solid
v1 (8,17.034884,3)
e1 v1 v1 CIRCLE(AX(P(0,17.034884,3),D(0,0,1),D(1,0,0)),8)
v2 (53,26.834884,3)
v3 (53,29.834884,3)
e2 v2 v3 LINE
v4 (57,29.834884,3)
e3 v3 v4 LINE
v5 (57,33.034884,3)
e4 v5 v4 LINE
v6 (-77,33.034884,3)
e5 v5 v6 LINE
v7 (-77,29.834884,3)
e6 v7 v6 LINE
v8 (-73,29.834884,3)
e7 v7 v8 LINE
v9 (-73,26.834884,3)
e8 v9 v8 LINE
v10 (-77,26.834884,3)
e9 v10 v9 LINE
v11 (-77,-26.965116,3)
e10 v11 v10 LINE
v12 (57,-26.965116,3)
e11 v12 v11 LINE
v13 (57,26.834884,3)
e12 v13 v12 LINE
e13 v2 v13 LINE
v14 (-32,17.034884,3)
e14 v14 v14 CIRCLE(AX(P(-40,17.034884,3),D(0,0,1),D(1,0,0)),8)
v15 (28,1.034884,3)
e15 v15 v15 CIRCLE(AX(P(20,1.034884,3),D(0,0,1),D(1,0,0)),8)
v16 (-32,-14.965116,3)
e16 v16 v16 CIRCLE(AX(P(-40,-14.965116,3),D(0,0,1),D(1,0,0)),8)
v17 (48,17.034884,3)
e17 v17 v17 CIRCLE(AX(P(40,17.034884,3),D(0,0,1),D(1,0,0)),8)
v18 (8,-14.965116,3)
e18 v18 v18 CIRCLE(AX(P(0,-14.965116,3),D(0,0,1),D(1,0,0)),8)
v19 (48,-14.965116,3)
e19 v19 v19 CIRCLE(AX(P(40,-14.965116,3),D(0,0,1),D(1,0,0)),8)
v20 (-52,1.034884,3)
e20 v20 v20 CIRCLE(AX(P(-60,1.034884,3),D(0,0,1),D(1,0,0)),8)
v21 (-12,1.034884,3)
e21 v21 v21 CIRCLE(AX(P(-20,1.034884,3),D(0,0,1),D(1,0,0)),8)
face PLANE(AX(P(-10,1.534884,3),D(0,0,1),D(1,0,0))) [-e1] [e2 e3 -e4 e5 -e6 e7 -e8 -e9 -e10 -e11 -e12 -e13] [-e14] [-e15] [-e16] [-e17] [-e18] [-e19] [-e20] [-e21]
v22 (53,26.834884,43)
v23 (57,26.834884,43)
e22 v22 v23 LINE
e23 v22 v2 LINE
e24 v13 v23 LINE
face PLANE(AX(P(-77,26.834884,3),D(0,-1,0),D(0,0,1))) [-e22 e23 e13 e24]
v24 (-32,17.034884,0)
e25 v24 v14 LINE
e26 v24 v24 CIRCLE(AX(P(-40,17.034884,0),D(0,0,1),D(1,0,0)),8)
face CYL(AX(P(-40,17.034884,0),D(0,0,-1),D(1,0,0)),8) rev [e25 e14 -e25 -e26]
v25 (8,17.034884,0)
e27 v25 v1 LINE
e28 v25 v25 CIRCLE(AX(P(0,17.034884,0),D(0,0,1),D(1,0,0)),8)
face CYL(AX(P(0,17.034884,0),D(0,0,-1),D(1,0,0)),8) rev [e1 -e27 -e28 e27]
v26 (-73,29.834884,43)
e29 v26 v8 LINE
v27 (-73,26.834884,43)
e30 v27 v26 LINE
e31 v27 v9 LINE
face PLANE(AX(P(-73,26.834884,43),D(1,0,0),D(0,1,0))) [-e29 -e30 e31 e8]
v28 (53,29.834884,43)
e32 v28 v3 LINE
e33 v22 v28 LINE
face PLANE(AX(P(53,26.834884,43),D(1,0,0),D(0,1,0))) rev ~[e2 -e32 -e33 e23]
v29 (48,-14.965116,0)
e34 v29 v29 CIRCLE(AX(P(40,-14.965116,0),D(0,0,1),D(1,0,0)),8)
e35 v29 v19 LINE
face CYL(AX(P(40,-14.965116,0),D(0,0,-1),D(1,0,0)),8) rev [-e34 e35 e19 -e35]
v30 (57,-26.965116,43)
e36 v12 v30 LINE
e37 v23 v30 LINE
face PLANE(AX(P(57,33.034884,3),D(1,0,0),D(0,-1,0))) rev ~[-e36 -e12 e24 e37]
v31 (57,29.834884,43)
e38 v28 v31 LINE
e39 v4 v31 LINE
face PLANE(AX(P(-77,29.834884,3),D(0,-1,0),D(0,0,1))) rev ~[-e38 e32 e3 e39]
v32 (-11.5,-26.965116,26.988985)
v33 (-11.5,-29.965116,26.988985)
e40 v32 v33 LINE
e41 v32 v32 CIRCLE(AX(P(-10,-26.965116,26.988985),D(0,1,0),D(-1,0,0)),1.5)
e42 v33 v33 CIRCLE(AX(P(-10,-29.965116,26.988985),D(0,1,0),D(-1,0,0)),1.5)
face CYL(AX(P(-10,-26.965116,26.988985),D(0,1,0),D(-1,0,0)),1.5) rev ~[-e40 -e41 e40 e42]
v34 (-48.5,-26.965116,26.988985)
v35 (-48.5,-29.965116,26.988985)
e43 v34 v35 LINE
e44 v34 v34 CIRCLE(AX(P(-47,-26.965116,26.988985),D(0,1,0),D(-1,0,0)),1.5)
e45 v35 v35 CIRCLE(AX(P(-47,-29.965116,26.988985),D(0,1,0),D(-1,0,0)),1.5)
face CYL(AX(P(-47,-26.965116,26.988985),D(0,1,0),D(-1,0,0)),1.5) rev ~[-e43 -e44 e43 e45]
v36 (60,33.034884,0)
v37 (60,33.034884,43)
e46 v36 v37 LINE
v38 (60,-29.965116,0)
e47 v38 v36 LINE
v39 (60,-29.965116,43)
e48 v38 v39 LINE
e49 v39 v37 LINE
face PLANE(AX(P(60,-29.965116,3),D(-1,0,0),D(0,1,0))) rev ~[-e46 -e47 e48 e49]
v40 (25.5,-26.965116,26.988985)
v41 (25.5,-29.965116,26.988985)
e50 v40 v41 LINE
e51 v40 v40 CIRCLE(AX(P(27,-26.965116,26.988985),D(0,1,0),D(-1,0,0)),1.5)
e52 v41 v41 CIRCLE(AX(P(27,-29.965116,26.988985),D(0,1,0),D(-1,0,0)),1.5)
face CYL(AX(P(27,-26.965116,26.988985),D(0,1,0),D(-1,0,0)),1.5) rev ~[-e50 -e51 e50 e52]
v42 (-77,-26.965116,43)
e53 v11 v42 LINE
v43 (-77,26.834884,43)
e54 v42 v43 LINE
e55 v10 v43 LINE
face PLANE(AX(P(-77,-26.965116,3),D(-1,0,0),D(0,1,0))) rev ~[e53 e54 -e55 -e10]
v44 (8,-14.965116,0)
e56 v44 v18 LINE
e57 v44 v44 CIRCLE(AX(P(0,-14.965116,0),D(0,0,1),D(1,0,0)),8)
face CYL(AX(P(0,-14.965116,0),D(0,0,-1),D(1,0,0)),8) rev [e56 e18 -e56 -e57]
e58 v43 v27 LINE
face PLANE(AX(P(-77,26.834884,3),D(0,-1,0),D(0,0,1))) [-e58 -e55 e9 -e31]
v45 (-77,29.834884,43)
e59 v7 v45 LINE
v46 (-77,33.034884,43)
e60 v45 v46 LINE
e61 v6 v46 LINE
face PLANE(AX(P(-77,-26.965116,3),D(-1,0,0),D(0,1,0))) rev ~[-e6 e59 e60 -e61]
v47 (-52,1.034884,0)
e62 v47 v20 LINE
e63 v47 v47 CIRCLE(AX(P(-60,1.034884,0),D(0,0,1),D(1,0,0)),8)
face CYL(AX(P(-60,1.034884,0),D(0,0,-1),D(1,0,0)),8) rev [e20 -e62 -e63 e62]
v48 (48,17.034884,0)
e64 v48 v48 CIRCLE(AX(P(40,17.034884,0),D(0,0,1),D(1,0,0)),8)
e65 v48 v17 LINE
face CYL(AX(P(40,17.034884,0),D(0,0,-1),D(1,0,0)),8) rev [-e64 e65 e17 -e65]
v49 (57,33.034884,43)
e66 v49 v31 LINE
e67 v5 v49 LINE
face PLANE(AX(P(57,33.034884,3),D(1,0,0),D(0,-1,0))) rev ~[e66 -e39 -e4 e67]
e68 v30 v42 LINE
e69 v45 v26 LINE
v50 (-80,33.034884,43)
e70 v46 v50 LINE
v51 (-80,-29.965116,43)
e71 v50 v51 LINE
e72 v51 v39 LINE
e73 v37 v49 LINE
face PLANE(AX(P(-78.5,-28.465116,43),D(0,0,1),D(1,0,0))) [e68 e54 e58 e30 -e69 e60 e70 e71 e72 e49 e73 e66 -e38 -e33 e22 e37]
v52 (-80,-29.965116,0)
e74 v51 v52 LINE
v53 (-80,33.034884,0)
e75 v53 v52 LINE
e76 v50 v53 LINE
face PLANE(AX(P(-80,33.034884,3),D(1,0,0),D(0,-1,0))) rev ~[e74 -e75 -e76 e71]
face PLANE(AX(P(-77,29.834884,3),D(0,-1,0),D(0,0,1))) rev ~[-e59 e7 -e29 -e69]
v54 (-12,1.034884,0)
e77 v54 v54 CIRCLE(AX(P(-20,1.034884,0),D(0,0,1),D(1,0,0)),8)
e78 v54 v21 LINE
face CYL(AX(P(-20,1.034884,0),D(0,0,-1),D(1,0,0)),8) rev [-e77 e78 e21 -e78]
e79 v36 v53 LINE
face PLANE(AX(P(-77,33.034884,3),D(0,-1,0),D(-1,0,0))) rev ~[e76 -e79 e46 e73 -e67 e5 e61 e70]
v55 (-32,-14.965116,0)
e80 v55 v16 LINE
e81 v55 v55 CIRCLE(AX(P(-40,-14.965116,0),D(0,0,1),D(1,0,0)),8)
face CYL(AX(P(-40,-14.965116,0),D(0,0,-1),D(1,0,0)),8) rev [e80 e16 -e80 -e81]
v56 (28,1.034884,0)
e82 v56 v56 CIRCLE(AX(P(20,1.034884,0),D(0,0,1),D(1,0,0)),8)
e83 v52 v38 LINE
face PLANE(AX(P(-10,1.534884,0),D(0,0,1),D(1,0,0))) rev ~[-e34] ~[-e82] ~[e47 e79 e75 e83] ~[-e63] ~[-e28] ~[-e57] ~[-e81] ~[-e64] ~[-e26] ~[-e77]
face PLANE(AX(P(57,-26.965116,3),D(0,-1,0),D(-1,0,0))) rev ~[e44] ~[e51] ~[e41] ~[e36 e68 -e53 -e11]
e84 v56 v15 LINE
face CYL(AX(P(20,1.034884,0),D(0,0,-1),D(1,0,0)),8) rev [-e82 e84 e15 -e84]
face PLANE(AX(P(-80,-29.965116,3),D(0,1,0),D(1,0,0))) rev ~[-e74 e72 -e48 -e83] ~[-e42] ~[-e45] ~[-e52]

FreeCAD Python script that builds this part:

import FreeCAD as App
import Part
import Sketcher

doc = App.newDocument("Part")
params = doc.addObject("Spreadsheet::Sheet", "Params")
for row, (alias, value) in enumerate([
    ("sketch1_diameter", "16 mm"),
    ("sketch1_width", "140 mm"),
    ("sketch1_height", "63 mm"),
    ("pad1_length", "3 mm"),
    ("sketch2_width", "140 mm"),
    ("sketch2_width2", "3 mm"),
    ("sketch2_height", "63 mm"),
    ("sketch2_height2", "60 mm"),
    ("pad2_length", "40 mm"),
    ("sketch3_width", "3 mm"),
    ("sketch3_height", "40 mm"),
    ("pad3_length", "134 mm"),
    ("sketch4_width", "126 mm"),
    ("sketch4_height", "3 mm"),
    ("pocket1_length", "40 mm"),
    ("sketch5_diameter", "3 mm"),
    ("pocket2_length", "3 mm"),
], start=1):
    params.set(f"A{row}", alias)
    params.set(f"B{row}", "=" + value)
    params.setAlias(f"B{row}", alias)

body = doc.addObject("PartDesign::Body", "Body")

sketch1 = body.newObject("Sketcher::SketchObject", "Sketch")
sketch1.AttachmentSupport = (doc.getObject("XY_Plane"), [""])
sketch1.MapMode = "FlatFace"
sketch1.addGeometry([
    Part.LineSegment(App.Vector(-80, 33.034884, 0), App.Vector(-80, -29.965116, 0)),
    Part.LineSegment(App.Vector(-80, -29.965116, 0), App.Vector(60, -29.965116, 0)),
    Part.LineSegment(App.Vector(60, -29.965116, 0), App.Vector(60, 33.034884, 0)),
    Part.LineSegment(App.Vector(60, 33.034884, 0), App.Vector(-80, 33.034884, 0)),
    Part.Circle(App.Vector(-40, -14.965116, 0), App.Vector(0, 0, 1), 8),
    Part.Circle(App.Vector(0, -14.965116, 0), App.Vector(0, 0, 1), 8),
    Part.Circle(App.Vector(40, -14.965116, 0), App.Vector(0, 0, 1), 8),
    Part.Circle(App.Vector(-60, 1.034884, 0), App.Vector(0, 0, 1), 8),
    Part.Circle(App.Vector(-20, 1.034884, 0), App.Vector(0, 0, 1), 8),
    Part.Circle(App.Vector(-40, 17.034884, 0), App.Vector(0, 0, 1), 8),
    Part.Circle(App.Vector(20, 1.034884, 0), App.Vector(0, 0, 1), 8),
    Part.Circle(App.Vector(0, 17.034884, 0), App.Vector(0, 0, 1), 8),
    Part.Circle(App.Vector(40, 17.034884, 0), App.Vector(0, 0, 1), 8),
], False)
sketch1.addConstraint([
    Sketcher.Constraint("Coincident", 0, 2, 1, 1),
    Sketcher.Constraint("Coincident", 1, 2, 2, 1),
    Sketcher.Constraint("Coincident", 2, 2, 3, 1),
    Sketcher.Constraint("Coincident", 3, 2, 0, 1),
    Sketcher.Constraint("Vertical", 0),
    Sketcher.Constraint("Horizontal", 1),
    Sketcher.Constraint("Vertical", 2),
    Sketcher.Constraint("Horizontal", 3),
    Sketcher.Constraint("Equal", 4, 5),
    Sketcher.Constraint("Equal", 5, 6),
    Sketcher.Constraint("Equal", 6, 7),
    Sketcher.Constraint("Equal", 7, 8),
    Sketcher.Constraint("Equal", 8, 9),
    Sketcher.Constraint("Equal", 9, 10),
    Sketcher.Constraint("Equal", 10, 11),
    Sketcher.Constraint("Equal", 11, 12),
    Sketcher.Constraint("Symmetric", 4, 3, 6, 3, -2),
    Sketcher.Constraint("Symmetric", 8, 3, 10, 3, -2),
    Sketcher.Constraint("Symmetric", 9, 3, 12, 3, -2),
    Sketcher.Constraint("PointOnObject", 5, 3, -2),
    Sketcher.Constraint("PointOnObject", 11, 3, -2),
    Sketcher.Constraint("Horizontal", 4, 3, 5, 3),
    Sketcher.Constraint("Horizontal", 7, 3, 8, 3),
    Sketcher.Constraint("Horizontal", 9, 3, 11, 3),
    Sketcher.Constraint("Vertical", 4, 3, 9, 3),
    Sketcher.Constraint("Diameter", 4, 16.0),
    Sketcher.Constraint("DistanceX", 1, 1, 1, 2, 140.0),
    Sketcher.Constraint("DistanceY", 0, 2, 0, 1, 63.0),
    Sketcher.Constraint("DistanceX", 4, 3, -1, 1, 40.0),
    Sketcher.Constraint("DistanceX", 7, 3, -1, 1, 60.0),
    Sketcher.Constraint("DistanceX", 8, 3, -1, 1, 20.0),
    Sketcher.Constraint("DistanceX", 0, 2, -1, 1, 80.0),
    Sketcher.Constraint("DistanceY", 4, 3, 7, 3, 16.0),
    Sketcher.Constraint("DistanceY", 7, 3, 9, 3, 16.0),
    Sketcher.Constraint("DistanceY", 0, 2, 7, 3, 31.0),
    Sketcher.Constraint("DistanceY", 4, 3, -1, 1, 14.965116),
])
sketch1.setExpression("Constraints[25]", "Params.sketch1_diameter")
sketch1.setExpression("Constraints[26]", "Params.sketch1_width")
sketch1.setExpression("Constraints[27]", "Params.sketch1_height")
pad1 = body.newObject("PartDesign::Pad", "Pad")
pad1.Profile = sketch1
pad1.setExpression("Length", "Params.pad1_length")

sketch2 = body.newObject("Sketcher::SketchObject", "Sketch001")
sketch2.AttachmentSupport = (doc.getObject("XY_Plane"), [""])
sketch2.MapMode = "FlatFace"
sketch2.AttachmentOffset = App.Placement(App.Vector(0, 0, 3), App.Rotation())
sketch2.addGeometry([
    Part.LineSegment(App.Vector(-80, -29.965116, 0), App.Vector(60, -29.965116, 0)),
    Part.LineSegment(App.Vector(60, -29.965116, 0), App.Vector(60, 33.034884, 0)),
    Part.LineSegment(App.Vector(60, 33.034884, 0), App.Vector(57, 33.034884, 0)),
    Part.LineSegment(App.Vector(57, 33.034884, 0), App.Vector(57, -26.965116, 0)),
    Part.LineSegment(App.Vector(57, -26.965116, 0), App.Vector(-77, -26.965116, 0)),
    Part.LineSegment(App.Vector(-77, -26.965116, 0), App.Vector(-77, 33.034884, 0)),
    Part.LineSegment(App.Vector(-77, 33.034884, 0), App.Vector(-80, 33.034884, 0)),
    Part.LineSegment(App.Vector(-80, 33.034884, 0), App.Vector(-80, -29.965116, 0)),
], False)
sketch2.addConstraint([
    Sketcher.Constraint("Coincident", 0, 2, 1, 1),
    Sketcher.Constraint("Coincident", 1, 2, 2, 1),
    Sketcher.Constraint("Coincident", 2, 2, 3, 1),
    Sketcher.Constraint("Coincident", 3, 2, 4, 1),
    Sketcher.Constraint("Coincident", 4, 2, 5, 1),
    Sketcher.Constraint("Coincident", 5, 2, 6, 1),
    Sketcher.Constraint("Coincident", 6, 2, 7, 1),
    Sketcher.Constraint("Coincident", 7, 2, 0, 1),
    Sketcher.Constraint("Horizontal", 0),
    Sketcher.Constraint("Vertical", 1),
    Sketcher.Constraint("Horizontal", 2),
    Sketcher.Constraint("Vertical", 3),
    Sketcher.Constraint("Horizontal", 4),
    Sketcher.Constraint("Vertical", 5),
    Sketcher.Constraint("Horizontal", 6),
    Sketcher.Constraint("Vertical", 7),
    Sketcher.Constraint("Horizontal", 2, 2, 5, 2),
    Sketcher.Constraint("Equal", 2, 6),
    Sketcher.Constraint("DistanceX", 0, 1, 0, 2, 140.0),
    Sketcher.Constraint("DistanceX", 2, 2, 2, 1, 3.0),
    Sketcher.Constraint("DistanceY", 1, 1, 1, 2, 63.0),
    Sketcher.Constraint("DistanceY", 3, 2, 3, 1, 60.0),
    Sketcher.Constraint("DistanceX", -1, 1, 0, 2, 60.0),
    Sketcher.Constraint("DistanceY", 0, 2, -1, 1, 29.965116),
])
sketch2.setExpression("Constraints[18]", "Params.sketch2_width")
sketch2.setExpression("Constraints[19]", "Params.sketch2_width2")
sketch2.setExpression("Constraints[20]", "Params.sketch2_height")
sketch2.setExpression("Constraints[21]", "Params.sketch2_height2")
pad2 = body.newObject("PartDesign::Pad", "Pad001")
pad2.Profile = sketch2
pad2.setExpression("Length", "Params.pad2_length")

sketch3 = body.newObject("Sketcher::SketchObject", "Sketch002")
sketch3.AttachmentSupport = (doc.getObject("YZ_Plane"), [""])
sketch3.MapMode = "FlatFace"
sketch3.AttachmentOffset = App.Placement(App.Vector(0, 0, -77), App.Rotation())
sketch3.addGeometry([
    Part.LineSegment(App.Vector(26.834884, 43, 0), App.Vector(26.834884, 3, 0)),
    Part.LineSegment(App.Vector(26.834884, 3, 0), App.Vector(29.834884, 3, 0)),
    Part.LineSegment(App.Vector(29.834884, 3, 0), App.Vector(29.834884, 43, 0)),
    Part.LineSegment(App.Vector(29.834884, 43, 0), App.Vector(26.834884, 43, 0)),
], False)
sketch3.addConstraint([
    Sketcher.Constraint("Coincident", 0, 2, 1, 1),
    Sketcher.Constraint("Coincident", 1, 2, 2, 1),
    Sketcher.Constraint("Coincident", 2, 2, 3, 1),
    Sketcher.Constraint("Coincident", 3, 2, 0, 1),
    Sketcher.Constraint("Vertical", 0),
    Sketcher.Constraint("Horizontal", 1),
    Sketcher.Constraint("Vertical", 2),
    Sketcher.Constraint("Horizontal", 3),
    Sketcher.Constraint("DistanceX", 1, 1, 1, 2, 3.0),
    Sketcher.Constraint("DistanceY", 0, 2, 0, 1, 40.0),
    Sketcher.Constraint("DistanceY", -1, 1, 0, 2, 3.0),
    Sketcher.Constraint("DistanceX", -1, 1, 0, 2, 26.834884),
])
sketch3.setExpression("Constraints[8]", "Params.sketch3_width")
sketch3.setExpression("Constraints[9]", "Params.sketch3_height")
pad3 = body.newObject("PartDesign::Pad", "Pad002")
pad3.Profile = sketch3
pad3.setExpression("Length", "Params.pad3_length")

sketch4 = body.newObject("Sketcher::SketchObject", "Sketch003")
sketch4.AttachmentSupport = (doc.getObject("XY_Plane"), [""])
sketch4.MapMode = "FlatFace"
sketch4.AttachmentOffset = App.Placement(App.Vector(0, 0, 43), App.Rotation())
sketch4.addGeometry([
    Part.LineSegment(App.Vector(-73, 29.834884, 0), App.Vector(-73, 26.834884, 0)),
    Part.LineSegment(App.Vector(-73, 26.834884, 0), App.Vector(53, 26.834884, 0)),
    Part.LineSegment(App.Vector(53, 26.834884, 0), App.Vector(53, 29.834884, 0)),
    Part.LineSegment(App.Vector(53, 29.834884, 0), App.Vector(-73, 29.834884, 0)),
], False)
sketch4.addConstraint([
    Sketcher.Constraint("Coincident", 0, 2, 1, 1),
    Sketcher.Constraint("Coincident", 1, 2, 2, 1),
    Sketcher.Constraint("Coincident", 2, 2, 3, 1),
    Sketcher.Constraint("Coincident", 3, 2, 0, 1),
    Sketcher.Constraint("Vertical", 0),
    Sketcher.Constraint("Horizontal", 1),
    Sketcher.Constraint("Vertical", 2),
    Sketcher.Constraint("Horizontal", 3),
    Sketcher.Constraint("DistanceX", 1, 1, 1, 2, 126.0),
    Sketcher.Constraint("DistanceY", 0, 2, 0, 1, 3.0),
    Sketcher.Constraint("DistanceX", 0, 2, -1, 1, 73.0),
    Sketcher.Constraint("DistanceY", -1, 1, 0, 2, 26.834884),
])
sketch4.setExpression("Constraints[8]", "Params.sketch4_width")
sketch4.setExpression("Constraints[9]", "Params.sketch4_height")
pocket1 = body.newObject("PartDesign::Pocket", "Pocket")
pocket1.Profile = sketch4
pocket1.setExpression("Length", "Params.pocket1_length")

sketch5 = body.newObject("Sketcher::SketchObject", "Sketch004")
sketch5.AttachmentSupport = (doc.getObject("XZ_Plane"), [""])
sketch5.MapMode = "FlatFace"
sketch5.AttachmentOffset = App.Placement(App.Vector(0, 0, 26.965116), App.Rotation())
sketch5.addGeometry([
    Part.Circle(App.Vector(-47, 26.988985, 0), App.Vector(0, 0, 1), 1.5),
    Part.Circle(App.Vector(27, 26.988985, 0), App.Vector(0, 0, 1), 1.5),
    Part.Circle(App.Vector(-10, 26.988985, 0), App.Vector(0, 0, 1), 1.5),
], False)
sketch5.addConstraint([
    Sketcher.Constraint("Equal", 0, 1),
    Sketcher.Constraint("Equal", 1, 2),
    Sketcher.Constraint("Horizontal", 0, 3, 1, 3),
    Sketcher.Constraint("Horizontal", 1, 3, 2, 3),
    Sketcher.Constraint("Diameter", 0, 3.0),
    Sketcher.Constraint("DistanceX", 0, 3, -1, 1, 47.0),
    Sketcher.Constraint("DistanceX", -1, 1, 1, 3, 27.0),
    Sketcher.Constraint("DistanceX", 2, 3, -1, 1, 10.0),
    Sketcher.Constraint("DistanceY", -1, 1, 0, 3, 26.988985),
])
sketch5.setExpression("Constraints[4]", "Params.sketch5_diameter")
pocket2 = body.newObject("PartDesign::Pocket", "Pocket001")
pocket2.Profile = sketch5
pocket2.setExpression("Length", "Params.pocket2_length")
pocket2.Reversed = True

doc.recompute()
